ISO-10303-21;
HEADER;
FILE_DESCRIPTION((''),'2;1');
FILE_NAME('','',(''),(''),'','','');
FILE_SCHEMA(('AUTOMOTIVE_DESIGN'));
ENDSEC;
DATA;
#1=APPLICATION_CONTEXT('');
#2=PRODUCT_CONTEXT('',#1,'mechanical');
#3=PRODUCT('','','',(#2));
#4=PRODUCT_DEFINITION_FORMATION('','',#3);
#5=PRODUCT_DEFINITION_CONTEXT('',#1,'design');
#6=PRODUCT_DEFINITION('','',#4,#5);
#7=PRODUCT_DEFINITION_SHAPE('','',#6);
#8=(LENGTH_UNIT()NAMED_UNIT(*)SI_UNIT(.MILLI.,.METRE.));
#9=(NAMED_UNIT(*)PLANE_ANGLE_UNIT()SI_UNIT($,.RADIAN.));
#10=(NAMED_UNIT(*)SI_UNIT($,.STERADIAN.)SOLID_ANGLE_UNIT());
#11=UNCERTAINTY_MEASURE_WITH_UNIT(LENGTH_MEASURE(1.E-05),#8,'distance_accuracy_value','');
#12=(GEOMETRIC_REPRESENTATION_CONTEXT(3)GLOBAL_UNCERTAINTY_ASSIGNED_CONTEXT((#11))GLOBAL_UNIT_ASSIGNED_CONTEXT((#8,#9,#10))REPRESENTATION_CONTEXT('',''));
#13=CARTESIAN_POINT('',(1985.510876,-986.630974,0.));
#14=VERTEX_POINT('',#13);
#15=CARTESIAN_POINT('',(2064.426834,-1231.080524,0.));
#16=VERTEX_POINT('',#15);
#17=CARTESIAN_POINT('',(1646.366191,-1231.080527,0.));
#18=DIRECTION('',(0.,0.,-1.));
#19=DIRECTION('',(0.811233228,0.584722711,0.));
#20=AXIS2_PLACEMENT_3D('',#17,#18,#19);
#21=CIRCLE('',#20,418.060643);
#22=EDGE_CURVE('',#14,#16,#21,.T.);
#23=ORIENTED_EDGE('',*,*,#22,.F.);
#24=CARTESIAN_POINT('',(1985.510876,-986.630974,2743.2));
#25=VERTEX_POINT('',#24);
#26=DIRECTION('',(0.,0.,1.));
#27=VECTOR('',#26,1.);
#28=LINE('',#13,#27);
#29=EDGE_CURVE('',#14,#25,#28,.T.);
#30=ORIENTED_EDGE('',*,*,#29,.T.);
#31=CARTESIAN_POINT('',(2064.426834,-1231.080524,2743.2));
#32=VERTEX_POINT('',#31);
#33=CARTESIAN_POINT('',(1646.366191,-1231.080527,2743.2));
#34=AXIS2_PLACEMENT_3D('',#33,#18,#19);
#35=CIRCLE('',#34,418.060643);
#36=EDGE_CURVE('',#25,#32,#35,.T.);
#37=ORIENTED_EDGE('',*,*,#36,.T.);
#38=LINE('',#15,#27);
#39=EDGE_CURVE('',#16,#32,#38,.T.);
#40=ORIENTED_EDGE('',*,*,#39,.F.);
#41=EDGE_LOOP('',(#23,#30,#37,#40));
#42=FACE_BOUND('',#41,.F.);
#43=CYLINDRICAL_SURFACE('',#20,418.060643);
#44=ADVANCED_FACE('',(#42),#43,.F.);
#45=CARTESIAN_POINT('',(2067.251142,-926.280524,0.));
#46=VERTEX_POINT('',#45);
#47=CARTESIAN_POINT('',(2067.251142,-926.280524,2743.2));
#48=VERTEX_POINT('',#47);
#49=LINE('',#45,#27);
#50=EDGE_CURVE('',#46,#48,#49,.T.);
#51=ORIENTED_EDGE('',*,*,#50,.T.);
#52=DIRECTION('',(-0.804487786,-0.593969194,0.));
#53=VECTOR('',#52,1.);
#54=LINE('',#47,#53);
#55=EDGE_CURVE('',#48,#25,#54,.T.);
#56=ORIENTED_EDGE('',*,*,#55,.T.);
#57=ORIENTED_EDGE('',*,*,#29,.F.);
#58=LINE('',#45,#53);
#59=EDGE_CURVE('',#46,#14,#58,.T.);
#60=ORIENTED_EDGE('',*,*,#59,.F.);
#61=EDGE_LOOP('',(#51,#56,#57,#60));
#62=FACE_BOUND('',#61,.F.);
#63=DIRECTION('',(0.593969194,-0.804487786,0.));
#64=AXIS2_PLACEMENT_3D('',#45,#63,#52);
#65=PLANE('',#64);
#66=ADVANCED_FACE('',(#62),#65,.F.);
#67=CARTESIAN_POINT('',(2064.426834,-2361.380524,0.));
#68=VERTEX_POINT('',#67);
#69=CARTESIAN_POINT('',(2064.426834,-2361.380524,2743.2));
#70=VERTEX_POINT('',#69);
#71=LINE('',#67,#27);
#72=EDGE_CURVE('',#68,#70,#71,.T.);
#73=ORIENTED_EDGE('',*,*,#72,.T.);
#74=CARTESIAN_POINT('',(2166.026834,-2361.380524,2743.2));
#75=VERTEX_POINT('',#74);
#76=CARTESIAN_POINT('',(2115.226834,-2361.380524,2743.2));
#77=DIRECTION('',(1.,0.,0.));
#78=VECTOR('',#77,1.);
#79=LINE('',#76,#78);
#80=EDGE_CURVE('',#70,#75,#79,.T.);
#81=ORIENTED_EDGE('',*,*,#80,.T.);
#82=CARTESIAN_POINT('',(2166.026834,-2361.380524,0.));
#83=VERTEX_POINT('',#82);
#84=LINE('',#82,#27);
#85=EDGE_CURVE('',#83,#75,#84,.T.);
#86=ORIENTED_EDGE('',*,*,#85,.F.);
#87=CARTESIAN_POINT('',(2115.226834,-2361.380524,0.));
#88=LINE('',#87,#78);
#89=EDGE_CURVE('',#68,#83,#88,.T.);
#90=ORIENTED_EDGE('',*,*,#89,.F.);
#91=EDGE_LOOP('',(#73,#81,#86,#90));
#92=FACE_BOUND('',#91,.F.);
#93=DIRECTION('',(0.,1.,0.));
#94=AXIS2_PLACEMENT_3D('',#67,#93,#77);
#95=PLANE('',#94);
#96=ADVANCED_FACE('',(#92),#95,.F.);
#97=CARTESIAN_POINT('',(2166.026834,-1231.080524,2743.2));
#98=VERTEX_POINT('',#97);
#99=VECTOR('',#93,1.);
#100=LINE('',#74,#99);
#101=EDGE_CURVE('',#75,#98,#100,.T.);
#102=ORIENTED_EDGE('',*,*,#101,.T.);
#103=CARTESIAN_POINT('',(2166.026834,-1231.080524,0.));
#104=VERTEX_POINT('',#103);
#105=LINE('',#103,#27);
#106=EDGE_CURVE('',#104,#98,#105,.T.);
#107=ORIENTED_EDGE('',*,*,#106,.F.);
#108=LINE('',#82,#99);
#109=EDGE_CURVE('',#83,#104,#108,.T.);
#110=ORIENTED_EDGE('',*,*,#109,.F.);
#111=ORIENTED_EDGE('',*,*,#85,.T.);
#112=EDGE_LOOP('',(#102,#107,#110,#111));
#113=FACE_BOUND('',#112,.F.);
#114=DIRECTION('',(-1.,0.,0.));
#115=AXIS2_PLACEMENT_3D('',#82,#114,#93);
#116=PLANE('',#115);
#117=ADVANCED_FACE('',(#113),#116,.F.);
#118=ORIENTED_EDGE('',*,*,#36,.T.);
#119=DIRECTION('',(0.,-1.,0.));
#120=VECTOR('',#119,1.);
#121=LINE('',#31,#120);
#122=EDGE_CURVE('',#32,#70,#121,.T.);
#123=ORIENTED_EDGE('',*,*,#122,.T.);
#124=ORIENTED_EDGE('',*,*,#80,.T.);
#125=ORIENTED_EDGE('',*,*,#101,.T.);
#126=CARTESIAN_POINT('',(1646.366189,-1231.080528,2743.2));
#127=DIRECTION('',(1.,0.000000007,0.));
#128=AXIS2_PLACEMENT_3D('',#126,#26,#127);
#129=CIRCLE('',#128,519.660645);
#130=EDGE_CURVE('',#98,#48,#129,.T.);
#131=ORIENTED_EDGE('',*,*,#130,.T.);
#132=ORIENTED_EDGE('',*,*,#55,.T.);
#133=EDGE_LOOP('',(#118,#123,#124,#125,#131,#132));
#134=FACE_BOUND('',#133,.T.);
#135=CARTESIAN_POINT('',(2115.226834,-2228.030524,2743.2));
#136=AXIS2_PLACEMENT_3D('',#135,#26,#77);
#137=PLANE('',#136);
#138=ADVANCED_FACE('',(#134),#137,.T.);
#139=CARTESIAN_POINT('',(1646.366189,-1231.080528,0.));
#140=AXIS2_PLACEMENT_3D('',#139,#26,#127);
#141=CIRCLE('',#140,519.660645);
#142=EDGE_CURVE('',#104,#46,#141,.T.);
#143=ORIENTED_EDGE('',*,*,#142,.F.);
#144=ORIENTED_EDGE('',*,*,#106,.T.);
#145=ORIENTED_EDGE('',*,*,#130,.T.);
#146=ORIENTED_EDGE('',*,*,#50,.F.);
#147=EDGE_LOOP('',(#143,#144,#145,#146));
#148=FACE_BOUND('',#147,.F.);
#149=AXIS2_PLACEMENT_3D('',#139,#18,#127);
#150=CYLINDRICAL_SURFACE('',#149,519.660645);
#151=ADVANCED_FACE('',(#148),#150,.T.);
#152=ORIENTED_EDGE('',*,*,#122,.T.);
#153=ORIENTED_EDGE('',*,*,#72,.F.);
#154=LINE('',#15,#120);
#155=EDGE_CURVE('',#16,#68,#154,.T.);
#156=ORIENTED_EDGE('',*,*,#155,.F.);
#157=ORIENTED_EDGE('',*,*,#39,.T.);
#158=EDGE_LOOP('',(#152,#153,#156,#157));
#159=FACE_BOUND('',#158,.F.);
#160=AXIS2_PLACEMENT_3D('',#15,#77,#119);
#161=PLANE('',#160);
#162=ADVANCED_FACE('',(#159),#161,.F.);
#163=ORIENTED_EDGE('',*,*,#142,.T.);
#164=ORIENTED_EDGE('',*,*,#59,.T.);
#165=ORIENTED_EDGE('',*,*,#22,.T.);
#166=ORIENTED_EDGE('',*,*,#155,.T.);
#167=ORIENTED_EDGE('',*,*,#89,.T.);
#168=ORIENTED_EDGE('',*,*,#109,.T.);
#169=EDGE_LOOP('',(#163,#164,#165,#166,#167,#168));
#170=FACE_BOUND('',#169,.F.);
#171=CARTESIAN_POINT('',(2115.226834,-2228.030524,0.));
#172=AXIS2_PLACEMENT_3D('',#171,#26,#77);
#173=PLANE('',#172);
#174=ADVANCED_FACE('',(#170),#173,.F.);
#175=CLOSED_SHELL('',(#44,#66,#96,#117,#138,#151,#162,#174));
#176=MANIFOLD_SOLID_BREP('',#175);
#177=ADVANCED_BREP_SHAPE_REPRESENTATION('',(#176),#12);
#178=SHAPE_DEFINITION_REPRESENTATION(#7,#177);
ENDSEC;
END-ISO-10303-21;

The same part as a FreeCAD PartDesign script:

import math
import FreeCAD as App
import Part
import Sketcher

V = App.Vector
Q = App.Units.Quantity

doc = App.newDocument("Part")
body = doc.addObject("PartDesign::Body", "Body")

# Sketch on XY plane
sketch1 = doc.addObject("Sketcher::SketchObject", "Sketch")
body.addObject(sketch1)
sketch1.AttachmentSupport = (doc.XY_Plane, [""])
sketch1.MapMode = "FlatFace"
sketch1.addGeometry(Part.LineSegment(V(2064.426834, -2361.380524, 0), V(2166.026834, -2361.380524, 0)), False)
sketch1.addGeometry(Part.LineSegment(V(2166.026834, -2361.380524, 0), V(2166.026834, -1231.080524, 0)), False)
sketch1.addGeometry(Part.ArcOfCircle(Part.Circle(V(1646.366189, -1231.080528, 0), V(0, 0, 1), 519.660645), math.radians(0), math.radians(35.91162)), False)
sketch1.addGeometry(Part.LineSegment(V(2067.251142, -926.280524, 0), V(1985.510876, -986.630974, 0)), False)
sketch1.addGeometry(Part.ArcOfCircle(Part.Circle(V(1646.366191, -1231.080527, 0), V(0, 0, 1), 418.060643), math.radians(0), math.radians(35.783403)), False)
sketch1.addGeometry(Part.LineSegment(V(2064.426834, -1231.080524, 0), V(2064.426834, -2361.380524, 0)), False)
sketch1.addConstraint(Sketcher.Constraint("Coincident", 0, 2, 1, 1))
sketch1.addConstraint(Sketcher.Constraint("Tangent", 1, 2, 2, 1))
sketch1.addConstraint(Sketcher.Constraint("Coincident", 2, 2, 3, 1))
sketch1.addConstraint(Sketcher.Constraint("Coincident", 3, 2, 4, 2))
sketch1.addConstraint(Sketcher.Constraint("Tangent", 4, 1, 5, 1))
sketch1.addConstraint(Sketcher.Constraint("Coincident", 5, 2, 0, 1))
sketch1.addConstraint(Sketcher.Constraint("Horizontal", 0))
sketch1.addConstraint(Sketcher.Constraint("Vertical", 1))
sketch1.addConstraint(Sketcher.Constraint("Vertical", 5))
sketch1.addConstraint(Sketcher.Constraint("Coincident", 4, 3, 2, 3))
sketch1.addConstraint(Sketcher.Constraint("DistanceX", 0, 1, 0, 2, Q("4 in")))
sketch1.addConstraint(Sketcher.Constraint("DistanceY", 1, 1, 1, 2, Q("44.5 in")))
sketch1.addConstraint(Sketcher.Constraint("DistanceY", 1, 2, 2, 2, Q("12 in")))
sketch1.addConstraint(Sketcher.Constraint("Radius", 2, Q("519.660645 mm")))
sketch1.addConstraint(Sketcher.Constraint("DistanceX", -1, 1, 2, 3, Q("1646.366189 mm")))
sketch1.addConstraint(Sketcher.Constraint("DistanceY", 1, 2, 3, 2, Q("244.44955 mm")))
sketch1.addConstraint(Sketcher.Constraint("DistanceY", 2, 3, -1, 1, Q("1231.080528 mm")))
pad1 = doc.addObject("PartDesign::Pad", "Pad")
body.addObject(pad1)
pad1.Profile = sketch1
pad1.Length = Q("108 in")

doc.recompute()
